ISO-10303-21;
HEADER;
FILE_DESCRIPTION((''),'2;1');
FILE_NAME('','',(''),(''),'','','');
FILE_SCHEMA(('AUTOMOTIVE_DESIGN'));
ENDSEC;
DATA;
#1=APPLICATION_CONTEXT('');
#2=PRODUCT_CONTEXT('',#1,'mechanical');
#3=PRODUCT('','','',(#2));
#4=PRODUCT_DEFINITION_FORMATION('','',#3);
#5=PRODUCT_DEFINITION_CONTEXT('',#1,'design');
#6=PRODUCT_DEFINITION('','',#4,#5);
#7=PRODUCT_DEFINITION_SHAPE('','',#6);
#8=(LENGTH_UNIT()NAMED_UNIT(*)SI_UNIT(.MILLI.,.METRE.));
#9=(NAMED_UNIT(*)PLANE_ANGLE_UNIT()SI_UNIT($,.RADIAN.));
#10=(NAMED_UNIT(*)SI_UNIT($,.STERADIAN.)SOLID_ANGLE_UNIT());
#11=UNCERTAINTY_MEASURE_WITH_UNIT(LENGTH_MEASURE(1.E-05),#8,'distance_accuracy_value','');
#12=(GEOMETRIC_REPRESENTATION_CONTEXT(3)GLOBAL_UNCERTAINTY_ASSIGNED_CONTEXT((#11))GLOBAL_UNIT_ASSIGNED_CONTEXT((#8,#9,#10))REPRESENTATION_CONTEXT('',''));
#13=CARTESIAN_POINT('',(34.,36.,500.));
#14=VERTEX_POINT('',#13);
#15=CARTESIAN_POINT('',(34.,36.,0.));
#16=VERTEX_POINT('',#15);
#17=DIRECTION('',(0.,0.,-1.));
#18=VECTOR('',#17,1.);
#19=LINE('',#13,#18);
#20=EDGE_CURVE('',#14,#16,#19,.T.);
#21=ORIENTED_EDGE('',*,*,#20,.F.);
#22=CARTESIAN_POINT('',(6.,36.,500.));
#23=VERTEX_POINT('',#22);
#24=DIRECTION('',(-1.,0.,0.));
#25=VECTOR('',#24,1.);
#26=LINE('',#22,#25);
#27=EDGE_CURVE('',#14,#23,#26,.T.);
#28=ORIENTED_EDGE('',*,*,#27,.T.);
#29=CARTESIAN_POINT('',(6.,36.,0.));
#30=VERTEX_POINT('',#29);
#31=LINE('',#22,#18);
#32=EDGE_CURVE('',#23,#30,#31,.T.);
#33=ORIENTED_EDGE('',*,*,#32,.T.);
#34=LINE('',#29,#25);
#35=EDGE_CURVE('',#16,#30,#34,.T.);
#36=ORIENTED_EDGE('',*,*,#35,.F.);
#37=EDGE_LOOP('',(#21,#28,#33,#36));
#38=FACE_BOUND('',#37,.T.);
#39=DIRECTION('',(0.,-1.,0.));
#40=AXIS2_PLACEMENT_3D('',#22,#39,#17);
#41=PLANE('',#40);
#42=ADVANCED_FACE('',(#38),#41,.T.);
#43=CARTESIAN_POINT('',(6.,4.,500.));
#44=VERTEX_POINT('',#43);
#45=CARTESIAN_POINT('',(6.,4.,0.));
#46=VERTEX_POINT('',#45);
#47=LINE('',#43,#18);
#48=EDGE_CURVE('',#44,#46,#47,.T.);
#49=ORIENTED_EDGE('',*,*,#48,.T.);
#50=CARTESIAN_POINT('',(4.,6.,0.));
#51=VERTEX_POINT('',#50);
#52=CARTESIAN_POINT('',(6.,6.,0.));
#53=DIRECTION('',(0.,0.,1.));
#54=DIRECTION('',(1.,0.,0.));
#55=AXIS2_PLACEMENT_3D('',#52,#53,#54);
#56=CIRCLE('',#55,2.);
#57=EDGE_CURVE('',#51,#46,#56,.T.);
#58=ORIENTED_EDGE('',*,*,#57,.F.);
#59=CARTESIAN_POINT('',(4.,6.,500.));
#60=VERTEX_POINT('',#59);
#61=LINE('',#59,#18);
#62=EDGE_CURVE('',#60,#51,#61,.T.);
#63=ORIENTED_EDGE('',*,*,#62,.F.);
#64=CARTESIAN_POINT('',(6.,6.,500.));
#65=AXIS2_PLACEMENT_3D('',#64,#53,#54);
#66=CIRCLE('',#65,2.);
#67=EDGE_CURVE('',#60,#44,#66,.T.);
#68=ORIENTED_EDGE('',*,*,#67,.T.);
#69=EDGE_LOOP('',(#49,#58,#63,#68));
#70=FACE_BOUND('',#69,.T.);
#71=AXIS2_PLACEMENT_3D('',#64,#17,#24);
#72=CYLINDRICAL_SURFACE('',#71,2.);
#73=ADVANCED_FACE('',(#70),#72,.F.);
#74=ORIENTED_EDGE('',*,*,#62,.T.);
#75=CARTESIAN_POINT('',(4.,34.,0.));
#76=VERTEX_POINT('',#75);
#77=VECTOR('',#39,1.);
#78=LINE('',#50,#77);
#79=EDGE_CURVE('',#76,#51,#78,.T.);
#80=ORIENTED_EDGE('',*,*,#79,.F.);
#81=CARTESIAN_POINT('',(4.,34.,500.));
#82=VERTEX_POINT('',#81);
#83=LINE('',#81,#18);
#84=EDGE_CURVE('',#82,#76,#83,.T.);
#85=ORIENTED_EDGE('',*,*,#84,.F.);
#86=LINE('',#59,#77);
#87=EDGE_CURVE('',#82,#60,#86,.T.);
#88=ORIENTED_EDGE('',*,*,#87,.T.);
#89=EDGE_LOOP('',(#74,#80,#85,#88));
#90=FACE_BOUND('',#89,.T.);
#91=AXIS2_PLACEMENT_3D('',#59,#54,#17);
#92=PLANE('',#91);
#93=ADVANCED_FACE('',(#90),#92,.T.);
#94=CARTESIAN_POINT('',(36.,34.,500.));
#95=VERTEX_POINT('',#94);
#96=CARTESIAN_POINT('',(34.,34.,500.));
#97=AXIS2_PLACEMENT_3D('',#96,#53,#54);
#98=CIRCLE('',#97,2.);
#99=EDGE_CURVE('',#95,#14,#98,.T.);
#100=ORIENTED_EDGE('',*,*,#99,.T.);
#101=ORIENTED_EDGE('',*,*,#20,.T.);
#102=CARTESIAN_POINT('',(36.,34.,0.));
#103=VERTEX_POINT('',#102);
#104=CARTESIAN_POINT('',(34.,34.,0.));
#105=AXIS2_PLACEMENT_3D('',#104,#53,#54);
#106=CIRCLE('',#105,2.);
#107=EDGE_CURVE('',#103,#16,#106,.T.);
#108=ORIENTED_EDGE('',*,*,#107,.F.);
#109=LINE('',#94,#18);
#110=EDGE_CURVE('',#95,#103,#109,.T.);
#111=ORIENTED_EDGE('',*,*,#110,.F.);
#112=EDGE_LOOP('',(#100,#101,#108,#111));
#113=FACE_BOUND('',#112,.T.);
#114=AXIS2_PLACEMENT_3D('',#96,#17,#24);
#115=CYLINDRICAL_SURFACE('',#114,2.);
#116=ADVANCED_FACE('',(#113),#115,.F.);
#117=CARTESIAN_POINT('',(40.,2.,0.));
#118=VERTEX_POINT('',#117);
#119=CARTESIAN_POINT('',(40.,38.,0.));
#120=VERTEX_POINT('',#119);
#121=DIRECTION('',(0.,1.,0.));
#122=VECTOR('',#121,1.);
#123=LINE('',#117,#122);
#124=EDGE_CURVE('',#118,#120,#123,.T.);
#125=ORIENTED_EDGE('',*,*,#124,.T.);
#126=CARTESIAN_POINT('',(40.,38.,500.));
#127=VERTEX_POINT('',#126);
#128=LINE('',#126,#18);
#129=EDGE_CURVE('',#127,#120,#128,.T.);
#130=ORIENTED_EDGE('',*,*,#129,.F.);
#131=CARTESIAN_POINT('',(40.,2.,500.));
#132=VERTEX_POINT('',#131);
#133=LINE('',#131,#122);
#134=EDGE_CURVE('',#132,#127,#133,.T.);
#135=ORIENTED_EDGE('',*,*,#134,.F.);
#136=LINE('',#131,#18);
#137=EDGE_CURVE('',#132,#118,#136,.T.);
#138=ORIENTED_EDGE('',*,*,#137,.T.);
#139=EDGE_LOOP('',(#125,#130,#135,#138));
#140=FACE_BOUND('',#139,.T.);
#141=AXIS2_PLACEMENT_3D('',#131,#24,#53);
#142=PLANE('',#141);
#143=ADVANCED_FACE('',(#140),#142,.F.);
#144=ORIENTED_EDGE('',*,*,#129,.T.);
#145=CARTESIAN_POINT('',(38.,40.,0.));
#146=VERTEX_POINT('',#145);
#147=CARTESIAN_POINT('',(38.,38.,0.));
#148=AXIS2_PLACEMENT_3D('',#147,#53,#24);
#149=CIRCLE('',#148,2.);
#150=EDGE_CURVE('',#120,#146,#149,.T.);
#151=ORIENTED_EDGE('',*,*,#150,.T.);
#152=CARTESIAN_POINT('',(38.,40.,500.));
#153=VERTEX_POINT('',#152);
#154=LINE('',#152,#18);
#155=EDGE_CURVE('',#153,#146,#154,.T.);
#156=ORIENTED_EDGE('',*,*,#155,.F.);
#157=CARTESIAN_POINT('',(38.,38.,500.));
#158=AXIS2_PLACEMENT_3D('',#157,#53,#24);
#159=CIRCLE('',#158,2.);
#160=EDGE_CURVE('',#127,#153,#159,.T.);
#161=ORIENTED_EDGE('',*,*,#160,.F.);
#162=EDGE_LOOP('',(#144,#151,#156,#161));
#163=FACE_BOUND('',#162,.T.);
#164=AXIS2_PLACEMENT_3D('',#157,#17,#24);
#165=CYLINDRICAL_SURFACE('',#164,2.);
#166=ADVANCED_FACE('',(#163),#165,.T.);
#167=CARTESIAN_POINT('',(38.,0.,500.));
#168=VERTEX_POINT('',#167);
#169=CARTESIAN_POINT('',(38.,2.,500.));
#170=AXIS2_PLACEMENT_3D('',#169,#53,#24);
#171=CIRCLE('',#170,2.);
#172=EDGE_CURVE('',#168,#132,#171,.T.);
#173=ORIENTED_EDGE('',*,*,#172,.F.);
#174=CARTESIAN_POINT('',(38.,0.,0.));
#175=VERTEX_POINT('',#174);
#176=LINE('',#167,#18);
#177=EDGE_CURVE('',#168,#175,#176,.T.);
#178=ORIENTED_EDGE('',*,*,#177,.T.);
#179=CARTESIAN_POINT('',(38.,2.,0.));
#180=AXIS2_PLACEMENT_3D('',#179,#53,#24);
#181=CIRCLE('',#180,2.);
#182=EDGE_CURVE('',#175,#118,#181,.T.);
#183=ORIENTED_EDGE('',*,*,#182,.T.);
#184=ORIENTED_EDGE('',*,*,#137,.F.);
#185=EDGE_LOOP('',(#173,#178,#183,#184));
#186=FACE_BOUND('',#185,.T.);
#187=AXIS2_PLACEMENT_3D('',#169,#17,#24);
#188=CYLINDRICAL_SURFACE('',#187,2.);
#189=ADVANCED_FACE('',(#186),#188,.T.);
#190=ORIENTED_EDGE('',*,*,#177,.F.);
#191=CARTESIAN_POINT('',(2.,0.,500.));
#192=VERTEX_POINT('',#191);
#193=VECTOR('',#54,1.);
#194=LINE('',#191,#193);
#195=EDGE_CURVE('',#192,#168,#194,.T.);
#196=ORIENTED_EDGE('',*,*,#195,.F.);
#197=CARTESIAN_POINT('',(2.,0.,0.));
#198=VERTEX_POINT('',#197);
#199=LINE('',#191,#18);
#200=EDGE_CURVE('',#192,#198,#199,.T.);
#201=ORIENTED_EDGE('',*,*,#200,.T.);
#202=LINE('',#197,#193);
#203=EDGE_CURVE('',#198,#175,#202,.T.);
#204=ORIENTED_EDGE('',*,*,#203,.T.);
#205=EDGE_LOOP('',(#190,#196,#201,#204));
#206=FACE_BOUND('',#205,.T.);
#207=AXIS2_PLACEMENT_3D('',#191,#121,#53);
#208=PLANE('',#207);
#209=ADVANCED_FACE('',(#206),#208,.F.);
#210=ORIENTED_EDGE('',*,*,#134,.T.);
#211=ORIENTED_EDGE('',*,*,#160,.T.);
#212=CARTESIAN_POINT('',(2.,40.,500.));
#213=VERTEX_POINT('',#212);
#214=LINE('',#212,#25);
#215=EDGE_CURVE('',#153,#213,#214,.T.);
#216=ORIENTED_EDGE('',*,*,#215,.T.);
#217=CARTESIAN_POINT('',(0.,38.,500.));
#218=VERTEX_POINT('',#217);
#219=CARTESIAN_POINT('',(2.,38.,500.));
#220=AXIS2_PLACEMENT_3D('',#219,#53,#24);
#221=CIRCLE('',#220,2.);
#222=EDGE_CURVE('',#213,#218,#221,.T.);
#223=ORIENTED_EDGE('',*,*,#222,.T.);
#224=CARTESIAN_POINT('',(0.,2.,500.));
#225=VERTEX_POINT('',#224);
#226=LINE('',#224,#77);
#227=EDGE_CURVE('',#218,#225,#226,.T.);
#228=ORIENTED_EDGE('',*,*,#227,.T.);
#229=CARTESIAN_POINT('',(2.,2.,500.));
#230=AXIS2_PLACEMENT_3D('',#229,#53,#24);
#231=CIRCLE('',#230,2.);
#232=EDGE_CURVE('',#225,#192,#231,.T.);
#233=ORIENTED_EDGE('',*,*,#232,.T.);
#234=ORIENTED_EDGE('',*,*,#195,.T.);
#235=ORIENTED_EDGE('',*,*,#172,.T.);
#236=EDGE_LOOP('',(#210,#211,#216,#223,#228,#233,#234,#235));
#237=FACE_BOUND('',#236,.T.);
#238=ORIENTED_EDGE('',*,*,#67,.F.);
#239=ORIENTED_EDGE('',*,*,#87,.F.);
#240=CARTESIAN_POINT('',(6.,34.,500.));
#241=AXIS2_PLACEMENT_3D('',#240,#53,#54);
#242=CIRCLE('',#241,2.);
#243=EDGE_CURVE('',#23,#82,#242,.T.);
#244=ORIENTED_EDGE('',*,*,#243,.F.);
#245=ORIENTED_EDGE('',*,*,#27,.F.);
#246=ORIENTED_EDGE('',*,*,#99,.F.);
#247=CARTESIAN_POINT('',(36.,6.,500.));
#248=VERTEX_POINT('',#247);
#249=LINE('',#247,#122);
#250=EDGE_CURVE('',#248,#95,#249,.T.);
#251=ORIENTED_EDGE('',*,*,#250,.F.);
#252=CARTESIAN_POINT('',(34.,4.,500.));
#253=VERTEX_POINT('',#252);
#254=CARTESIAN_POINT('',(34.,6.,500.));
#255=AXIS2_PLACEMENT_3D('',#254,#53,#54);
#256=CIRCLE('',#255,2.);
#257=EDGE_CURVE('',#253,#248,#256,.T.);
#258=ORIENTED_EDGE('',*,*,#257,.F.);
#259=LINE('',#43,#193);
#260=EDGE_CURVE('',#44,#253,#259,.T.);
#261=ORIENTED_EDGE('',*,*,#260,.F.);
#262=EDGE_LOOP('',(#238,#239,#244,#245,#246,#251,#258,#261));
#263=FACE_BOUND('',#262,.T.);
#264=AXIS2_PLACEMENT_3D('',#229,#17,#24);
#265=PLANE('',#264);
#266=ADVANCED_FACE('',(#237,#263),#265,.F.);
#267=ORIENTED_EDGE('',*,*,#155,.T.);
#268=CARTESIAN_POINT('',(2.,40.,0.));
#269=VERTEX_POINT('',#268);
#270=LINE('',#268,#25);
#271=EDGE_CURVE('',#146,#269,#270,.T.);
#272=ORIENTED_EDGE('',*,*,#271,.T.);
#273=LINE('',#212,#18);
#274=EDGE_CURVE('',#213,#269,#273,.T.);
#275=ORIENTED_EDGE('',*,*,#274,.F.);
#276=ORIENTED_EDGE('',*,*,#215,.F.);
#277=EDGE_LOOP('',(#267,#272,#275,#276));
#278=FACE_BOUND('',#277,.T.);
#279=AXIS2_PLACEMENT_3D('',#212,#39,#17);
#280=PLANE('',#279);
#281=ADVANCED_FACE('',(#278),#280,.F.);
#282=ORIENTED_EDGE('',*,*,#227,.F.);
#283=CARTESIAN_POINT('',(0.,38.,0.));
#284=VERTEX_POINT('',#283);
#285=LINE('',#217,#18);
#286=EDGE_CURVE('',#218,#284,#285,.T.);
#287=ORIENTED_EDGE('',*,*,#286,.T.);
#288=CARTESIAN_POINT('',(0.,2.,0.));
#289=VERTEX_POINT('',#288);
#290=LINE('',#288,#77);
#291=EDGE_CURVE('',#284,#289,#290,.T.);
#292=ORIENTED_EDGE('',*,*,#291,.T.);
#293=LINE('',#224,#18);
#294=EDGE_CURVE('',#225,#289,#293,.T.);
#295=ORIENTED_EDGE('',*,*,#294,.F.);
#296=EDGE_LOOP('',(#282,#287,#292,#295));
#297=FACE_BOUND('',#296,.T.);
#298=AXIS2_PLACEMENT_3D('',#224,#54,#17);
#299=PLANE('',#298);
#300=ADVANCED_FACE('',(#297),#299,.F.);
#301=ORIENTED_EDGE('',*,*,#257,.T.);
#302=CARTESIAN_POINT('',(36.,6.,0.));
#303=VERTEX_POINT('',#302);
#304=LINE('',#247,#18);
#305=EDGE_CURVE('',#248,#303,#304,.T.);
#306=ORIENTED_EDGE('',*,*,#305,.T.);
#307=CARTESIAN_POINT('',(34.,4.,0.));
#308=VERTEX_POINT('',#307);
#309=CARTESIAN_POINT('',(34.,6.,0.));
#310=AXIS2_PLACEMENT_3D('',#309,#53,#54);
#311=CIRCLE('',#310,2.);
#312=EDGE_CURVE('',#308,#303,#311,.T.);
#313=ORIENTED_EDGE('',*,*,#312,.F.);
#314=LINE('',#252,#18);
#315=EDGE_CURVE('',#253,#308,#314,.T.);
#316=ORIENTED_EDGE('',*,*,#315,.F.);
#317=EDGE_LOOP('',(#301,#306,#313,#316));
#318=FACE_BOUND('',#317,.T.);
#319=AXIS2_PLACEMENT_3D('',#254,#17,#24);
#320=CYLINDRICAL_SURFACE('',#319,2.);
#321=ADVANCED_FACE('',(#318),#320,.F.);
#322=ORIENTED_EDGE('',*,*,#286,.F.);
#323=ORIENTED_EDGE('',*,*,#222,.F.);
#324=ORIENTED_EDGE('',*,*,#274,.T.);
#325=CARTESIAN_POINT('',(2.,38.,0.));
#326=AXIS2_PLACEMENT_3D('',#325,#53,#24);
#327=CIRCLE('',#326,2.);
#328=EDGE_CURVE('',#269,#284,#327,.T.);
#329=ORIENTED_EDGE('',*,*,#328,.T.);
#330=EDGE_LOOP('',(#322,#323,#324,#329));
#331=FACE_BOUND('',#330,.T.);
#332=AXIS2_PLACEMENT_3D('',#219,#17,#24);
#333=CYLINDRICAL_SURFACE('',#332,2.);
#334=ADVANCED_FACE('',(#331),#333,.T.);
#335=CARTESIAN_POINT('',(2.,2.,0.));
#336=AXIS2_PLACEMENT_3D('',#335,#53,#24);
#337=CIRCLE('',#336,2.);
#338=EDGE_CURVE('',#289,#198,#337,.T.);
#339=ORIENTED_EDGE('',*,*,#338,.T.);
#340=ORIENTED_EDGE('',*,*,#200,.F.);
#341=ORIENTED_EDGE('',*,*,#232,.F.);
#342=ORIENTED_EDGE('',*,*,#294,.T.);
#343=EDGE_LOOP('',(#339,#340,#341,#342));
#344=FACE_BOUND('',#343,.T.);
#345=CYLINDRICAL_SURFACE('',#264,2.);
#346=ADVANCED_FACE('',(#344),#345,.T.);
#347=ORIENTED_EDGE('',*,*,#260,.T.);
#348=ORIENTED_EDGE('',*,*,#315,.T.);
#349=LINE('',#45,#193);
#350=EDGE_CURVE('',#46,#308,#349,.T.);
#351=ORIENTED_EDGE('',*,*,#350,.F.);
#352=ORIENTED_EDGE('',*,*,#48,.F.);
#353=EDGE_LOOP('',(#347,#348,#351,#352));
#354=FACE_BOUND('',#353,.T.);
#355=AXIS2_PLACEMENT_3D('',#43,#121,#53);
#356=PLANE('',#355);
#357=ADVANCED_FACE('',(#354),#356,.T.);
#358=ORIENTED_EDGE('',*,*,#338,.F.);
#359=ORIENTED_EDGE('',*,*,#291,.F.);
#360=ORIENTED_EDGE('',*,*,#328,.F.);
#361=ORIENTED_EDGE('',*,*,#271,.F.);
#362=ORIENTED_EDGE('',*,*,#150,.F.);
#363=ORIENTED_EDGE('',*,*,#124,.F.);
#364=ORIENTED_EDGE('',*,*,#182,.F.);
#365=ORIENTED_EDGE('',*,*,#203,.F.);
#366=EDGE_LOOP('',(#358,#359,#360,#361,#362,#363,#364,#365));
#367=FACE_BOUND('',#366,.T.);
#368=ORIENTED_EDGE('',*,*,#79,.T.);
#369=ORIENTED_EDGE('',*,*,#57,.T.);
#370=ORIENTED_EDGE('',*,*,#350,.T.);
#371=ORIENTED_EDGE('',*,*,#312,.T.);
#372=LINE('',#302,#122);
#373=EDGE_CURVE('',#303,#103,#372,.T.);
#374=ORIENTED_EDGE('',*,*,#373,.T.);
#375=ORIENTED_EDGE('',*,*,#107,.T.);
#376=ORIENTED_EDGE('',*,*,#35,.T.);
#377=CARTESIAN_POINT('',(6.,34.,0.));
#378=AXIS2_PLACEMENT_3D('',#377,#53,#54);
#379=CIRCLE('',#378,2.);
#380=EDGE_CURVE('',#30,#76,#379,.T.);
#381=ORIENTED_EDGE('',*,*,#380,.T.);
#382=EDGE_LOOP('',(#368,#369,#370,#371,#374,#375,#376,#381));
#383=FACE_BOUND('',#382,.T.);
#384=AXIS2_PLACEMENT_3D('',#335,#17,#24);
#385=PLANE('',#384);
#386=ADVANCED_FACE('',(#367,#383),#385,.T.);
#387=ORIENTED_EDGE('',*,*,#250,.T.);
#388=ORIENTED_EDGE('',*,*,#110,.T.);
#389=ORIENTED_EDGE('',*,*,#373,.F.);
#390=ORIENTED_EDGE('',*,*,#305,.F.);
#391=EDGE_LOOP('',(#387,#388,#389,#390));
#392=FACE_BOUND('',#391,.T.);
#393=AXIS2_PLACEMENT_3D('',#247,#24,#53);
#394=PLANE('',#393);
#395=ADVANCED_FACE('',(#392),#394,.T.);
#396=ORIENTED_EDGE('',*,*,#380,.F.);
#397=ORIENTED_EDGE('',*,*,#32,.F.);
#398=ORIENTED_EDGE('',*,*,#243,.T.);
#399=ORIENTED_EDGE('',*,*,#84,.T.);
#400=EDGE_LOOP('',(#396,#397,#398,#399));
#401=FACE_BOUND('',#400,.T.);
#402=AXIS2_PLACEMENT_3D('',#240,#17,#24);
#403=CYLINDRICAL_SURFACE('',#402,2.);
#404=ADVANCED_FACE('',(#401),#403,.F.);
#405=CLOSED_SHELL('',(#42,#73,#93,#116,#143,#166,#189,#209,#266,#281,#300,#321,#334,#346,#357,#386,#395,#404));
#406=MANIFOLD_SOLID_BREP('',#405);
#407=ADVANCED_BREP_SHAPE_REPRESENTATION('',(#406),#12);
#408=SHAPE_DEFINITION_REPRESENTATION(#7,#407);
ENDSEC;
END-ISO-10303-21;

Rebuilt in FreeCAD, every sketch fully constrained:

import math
import FreeCAD as App
import Part
import Sketcher
from FreeCAD import Vector

doc = App.newDocument("Part")
body = doc.addObject("PartDesign::Body", "Body")

# Sketch on XY plane
sketch1 = body.newObject("Sketcher::SketchObject", "Sketch")
sketch1.AttachmentSupport = (doc.getObject("XY_Plane"), [""])
sketch1.MapMode = "FlatFace"
sketch1.addGeometry(Part.LineSegment(Vector(2, 0, 0), Vector(38, 0, 0)), False)
sketch1.addGeometry(Part.ArcOfCircle(Part.Circle(Vector(38, 2, 0), Vector(0, 0, 1), 2), math.radians(-90), math.radians(0)), False)
sketch1.addGeometry(Part.LineSegment(Vector(40, 2, 0), Vector(40, 38, 0)), False)
sketch1.addGeometry(Part.ArcOfCircle(Part.Circle(Vector(38, 38, 0), Vector(0, 0, 1), 2), math.radians(0), math.radians(90)), False)
sketch1.addGeometry(Part.LineSegment(Vector(38, 40, 0), Vector(2, 40, 0)), False)
sketch1.addGeometry(Part.ArcOfCircle(Part.Circle(Vector(2, 38, 0), Vector(0, 0, 1), 2), math.radians(90), math.radians(180)), False)
sketch1.addGeometry(Part.LineSegment(Vector(0, 38, 0), Vector(0, 2, 0)), False)
sketch1.addGeometry(Part.ArcOfCircle(Part.Circle(Vector(2, 2, 0), Vector(0, 0, 1), 2), math.radians(-180), math.radians(-90)), False)
sketch1.addGeometry(Part.LineSegment(Vector(34, 4, 0), Vector(6, 4, 0)), False)
sketch1.addGeometry(Part.ArcOfCircle(Part.Circle(Vector(6, 6, 0), Vector(0, 0, 1), 2), math.radians(-180), math.radians(-90)), False)
sketch1.addGeometry(Part.LineSegment(Vector(4, 6, 0), Vector(4, 34, 0)), False)
sketch1.addGeometry(Part.ArcOfCircle(Part.Circle(Vector(6, 34, 0), Vector(0, 0, 1), 2), math.radians(90), math.radians(180)), False)
sketch1.addGeometry(Part.LineSegment(Vector(6, 36, 0), Vector(34, 36, 0)), False)
sketch1.addGeometry(Part.ArcOfCircle(Part.Circle(Vector(34, 34, 0), Vector(0, 0, 1), 2), math.radians(0), math.radians(90)), False)
sketch1.addGeometry(Part.LineSegment(Vector(36, 34, 0), Vector(36, 6, 0)), False)
sketch1.addGeometry(Part.ArcOfCircle(Part.Circle(Vector(34, 6, 0), Vector(0, 0, 1), 2), math.radians(-90), math.radians(0)), False)
sketch1.addConstraint(Sketcher.Constraint("Tangent", 0, 2, 1, 1))
sketch1.addConstraint(Sketcher.Constraint("Tangent", 1, 2, 2, 1))
sketch1.addConstraint(Sketcher.Constraint("Tangent", 2, 2, 3, 1))
sketch1.addConstraint(Sketcher.Constraint("Tangent", 3, 2, 4, 1))
sketch1.addConstraint(Sketcher.Constraint("Tangent", 4, 2, 5, 1))
sketch1.addConstraint(Sketcher.Constraint("Tangent", 5, 2, 6, 1))
sketch1.addConstraint(Sketcher.Constraint("Tangent", 6, 2, 7, 1))
sketch1.addConstraint(Sketcher.Constraint("Tangent", 7, 2, 0, 1))
sketch1.addConstraint(Sketcher.Constraint("Tangent", 8, 2, 9, 2))
sketch1.addConstraint(Sketcher.Constraint("Tangent", 9, 1, 10, 1))
sketch1.addConstraint(Sketcher.Constraint("Tangent", 10, 2, 11, 2))
sketch1.addConstraint(Sketcher.Constraint("Tangent", 11, 1, 12, 1))
sketch1.addConstraint(Sketcher.Constraint("Tangent", 12, 2, 13, 2))
sketch1.addConstraint(Sketcher.Constraint("Tangent", 13, 1, 14, 1))
sketch1.addConstraint(Sketcher.Constraint("Tangent", 14, 2, 15, 2))
sketch1.addConstraint(Sketcher.Constraint("Tangent", 15, 1, 8, 1))
sketch1.addConstraint(Sketcher.Constraint("Horizontal", 0))
sketch1.addConstraint(Sketcher.Constraint("Vertical", 2))
sketch1.addConstraint(Sketcher.Constraint("Horizontal", 4))
sketch1.addConstraint(Sketcher.Constraint("Vertical", 6))
sketch1.addConstraint(Sketcher.Constraint("Horizontal", 8))
sketch1.addConstraint(Sketcher.Constraint("Vertical", 10))
sketch1.addConstraint(Sketcher.Constraint("Horizontal", 12))
sketch1.addConstraint(Sketcher.Constraint("Vertical", 14))
sketch1.addConstraint(Sketcher.Constraint("Equal", 1, 3))
sketch1.addConstraint(Sketcher.Constraint("Equal", 3, 5))
sketch1.addConstraint(Sketcher.Constraint("Equal", 5, 7))
sketch1.addConstraint(Sketcher.Constraint("Equal", 7, 9))
sketch1.addConstraint(Sketcher.Constraint("Equal", 9, 11))
sketch1.addConstraint(Sketcher.Constraint("Equal", 11, 13))
sketch1.addConstraint(Sketcher.Constraint("Equal", 13, 15))
sketch1.addConstraint(Sketcher.Constraint("PointOnObject", 0, 2, -1))
sketch1.addConstraint(Sketcher.Constraint("PointOnObject", 5, 2, -2))
sketch1.addConstraint(Sketcher.Constraint("Equal", 4, 2))
sketch1.addConstraint(Sketcher.Constraint("Equal", 12, 10))
sketch1.addConstraint(Sketcher.Constraint("Radius", 1, 2.0))
sketch1.addConstraint(Sketcher.Constraint("DistanceX", 0, 1, 0, 2, 36.0))
sketch1.addConstraint(Sketcher.Constraint("DistanceX", 8, 2, 8, 1, 28.0))
sketch1.addConstraint(Sketcher.Constraint("DistanceX", -1, 1, 9, 3, 6.0))
sketch1.addConstraint(Sketcher.Constraint("DistanceY", -1, 1, 9, 3, 6.0))
pad1 = body.newObject("PartDesign::Pad", "Pad")
pad1.Profile = sketch1
pad1.Length = 500

doc.recompute()
